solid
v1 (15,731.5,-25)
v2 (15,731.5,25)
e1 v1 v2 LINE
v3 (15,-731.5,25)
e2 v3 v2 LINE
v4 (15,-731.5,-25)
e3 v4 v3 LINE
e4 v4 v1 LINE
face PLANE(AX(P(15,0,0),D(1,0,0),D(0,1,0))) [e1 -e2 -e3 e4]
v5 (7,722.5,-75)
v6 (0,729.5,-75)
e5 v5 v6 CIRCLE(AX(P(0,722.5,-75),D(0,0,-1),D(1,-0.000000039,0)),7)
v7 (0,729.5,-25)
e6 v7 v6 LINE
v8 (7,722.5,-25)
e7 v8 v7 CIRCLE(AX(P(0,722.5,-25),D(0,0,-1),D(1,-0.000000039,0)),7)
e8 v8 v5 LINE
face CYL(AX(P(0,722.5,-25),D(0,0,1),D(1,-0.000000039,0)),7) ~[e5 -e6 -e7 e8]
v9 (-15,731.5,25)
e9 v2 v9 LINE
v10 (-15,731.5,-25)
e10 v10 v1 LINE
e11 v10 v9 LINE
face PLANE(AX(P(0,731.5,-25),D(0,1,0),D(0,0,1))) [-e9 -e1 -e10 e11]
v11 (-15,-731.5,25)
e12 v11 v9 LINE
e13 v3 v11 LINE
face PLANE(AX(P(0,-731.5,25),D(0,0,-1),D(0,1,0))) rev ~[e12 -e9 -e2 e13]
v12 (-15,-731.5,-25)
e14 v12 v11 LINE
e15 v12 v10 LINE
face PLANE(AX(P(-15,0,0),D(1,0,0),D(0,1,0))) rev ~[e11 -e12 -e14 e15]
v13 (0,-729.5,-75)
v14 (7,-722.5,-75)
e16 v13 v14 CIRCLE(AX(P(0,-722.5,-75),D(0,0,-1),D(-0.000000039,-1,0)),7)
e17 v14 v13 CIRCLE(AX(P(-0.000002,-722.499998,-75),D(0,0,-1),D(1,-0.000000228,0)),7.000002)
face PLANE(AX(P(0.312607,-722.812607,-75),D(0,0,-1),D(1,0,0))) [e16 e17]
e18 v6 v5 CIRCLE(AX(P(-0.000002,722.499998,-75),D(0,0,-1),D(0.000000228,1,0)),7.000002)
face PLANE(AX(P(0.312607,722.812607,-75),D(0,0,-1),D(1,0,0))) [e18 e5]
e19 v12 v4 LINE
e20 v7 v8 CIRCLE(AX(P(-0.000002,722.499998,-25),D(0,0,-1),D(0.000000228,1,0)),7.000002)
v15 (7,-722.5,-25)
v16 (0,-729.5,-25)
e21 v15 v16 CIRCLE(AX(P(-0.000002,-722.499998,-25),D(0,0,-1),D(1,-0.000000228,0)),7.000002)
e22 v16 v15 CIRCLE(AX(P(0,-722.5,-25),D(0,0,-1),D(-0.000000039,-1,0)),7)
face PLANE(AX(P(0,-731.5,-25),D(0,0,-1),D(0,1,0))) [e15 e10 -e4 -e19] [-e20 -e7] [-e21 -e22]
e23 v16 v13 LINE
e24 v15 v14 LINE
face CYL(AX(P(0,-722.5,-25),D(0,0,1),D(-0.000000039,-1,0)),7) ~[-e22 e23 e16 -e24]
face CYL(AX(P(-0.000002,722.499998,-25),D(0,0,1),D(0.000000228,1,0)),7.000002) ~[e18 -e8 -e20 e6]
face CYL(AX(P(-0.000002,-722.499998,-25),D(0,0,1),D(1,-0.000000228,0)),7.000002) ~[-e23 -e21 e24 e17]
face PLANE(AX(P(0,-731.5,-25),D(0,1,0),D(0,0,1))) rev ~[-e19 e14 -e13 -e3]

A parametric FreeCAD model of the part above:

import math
import FreeCAD as App
import Part
import Sketcher

doc = App.newDocument("Part")
params = doc.addObject("Spreadsheet::Sheet", "Params")
for row, (alias, value) in enumerate([
    ("sketch1_width", "1463 mm"),
    ("sketch1_height", "50 mm"),
    ("pad1_length", "15 mm"),
    ("pad1_length2", "15 mm"),
    ("sketch2_radius", "7 mm"),
    ("pad2_length", "50 mm"),
    ("sketch3_radius", "7.000002 mm"),
    ("pad3_length", "50 mm"),
], start=1):
    params.set(f"A{row}", alias)
    params.set(f"B{row}", "=" + value)
    params.setAlias(f"B{row}", alias)

body = doc.addObject("PartDesign::Body", "Body")

sketch1 = doc.addObject("Sketcher::SketchObject", "Sketch")
body.addObject(sketch1)
sketch1.AttachmentSupport = (doc.YZ_Plane, [""])
sketch1.MapMode = "FlatFace"
sketch1.addGeometry([
    Part.LineSegment(App.Vector(-732, 25, 0), App.Vector(-732, -25, 0)),
    Part.LineSegment(App.Vector(-732, -25, 0), App.Vector(732, -25, 0)),
    Part.LineSegment(App.Vector(732, -25, 0), App.Vector(732, 25, 0)),
    Part.LineSegment(App.Vector(732, 25, 0), App.Vector(-732, 25, 0)),
], False)
sketch1.addConstraint([
    Sketcher.Constraint("Coincident", 0, 2, 1, 1),
    Sketcher.Constraint("Coincident", 1, 2, 2, 1),
    Sketcher.Constraint("Coincident", 2, 2, 3, 1),
    Sketcher.Constraint("Coincident", 3, 2, 0, 1),
    Sketcher.Constraint("Vertical", 0),
    Sketcher.Constraint("Horizontal", 1),
    Sketcher.Constraint("Vertical", 2),
    Sketcher.Constraint("Horizontal", 3),
    Sketcher.Constraint("Symmetric", 0, 2, 2, 2, -1, 1),
    Sketcher.Constraint("DistanceX", 1, 1, 1, 2, 1463.0),
    Sketcher.Constraint("DistanceY", 0, 2, 0, 1, 50.0),
])
sketch1.setExpression("Constraints[9]", "Params.sketch1_width")
sketch1.setExpression("Constraints[10]", "Params.sketch1_height")
pad1 = doc.addObject("PartDesign::Pad", "Pad")
body.addObject(pad1)
pad1.Profile = sketch1
pad1.Type = "TwoLengths"
pad1.setExpression("Length", "Params.pad1_length")
pad1.setExpression("Length2", "Params.pad1_length2")

sketch2 = doc.addObject("Sketcher::SketchObject", "Sketch001")
body.addObject(sketch2)
sketch2.AttachmentSupport = (doc.XY_Plane, [""])
sketch2.MapMode = "FlatFace"
sketch2.AttachmentOffset = App.Placement(App.Vector(0, 0, -25), App.Rotation())
sketch2.addGeometry([
    Part.ArcOfCircle(Part.Circle(App.Vector(0, -723, 0), App.Vector(0, 0, 1), 7), math.radians(0), math.radians(270)),
    Part.ArcOfCircle(Part.Circle(App.Vector(0, -722, 0), App.Vector(0, 0, 1), 7), math.radians(-90), math.radians(0)),
], False)
sketch2.addConstraint([
    Sketcher.Constraint("Tangent", 0, 1, 1, 2),
    Sketcher.Constraint("Coincident", 1, 1, 0, 2),
    Sketcher.Constraint("PointOnObject", 0, 3, -2),
    Sketcher.Constraint("PointOnObject", 1, 1, -2),
    Sketcher.Constraint("Horizontal", 1, 3, 0, 1),
    Sketcher.Constraint("Radius", 0, 7.0),
    Sketcher.Constraint("DistanceY", 0, 3, -1, 1, 722.5),
])
sketch2.setExpression("Constraints[5]", "Params.sketch2_radius")
pad2 = doc.addObject("PartDesign::Pad", "Pad001")
body.addObject(pad2)
pad2.Profile = sketch2
pad2.setExpression("Length", "Params.pad2_length")
pad2.Reversed = True

sketch3 = doc.addObject("Sketcher::SketchObject", "Sketch002")
body.addObject(sketch3)
sketch3.AttachmentSupport = (doc.XY_Plane, [""])
sketch3.MapMode = "FlatFace"
sketch3.AttachmentOffset = App.Placement(App.Vector(0, 0, -25), App.Rotation())
sketch3.addGeometry([
    Part.ArcOfCircle(Part.Circle(App.Vector(0, 722, 0), App.Vector(0, 0, 1), 7), math.radians(0), math.radians(90)),
    Part.ArcOfCircle(Part.Circle(App.Vector(0, 723, 0), App.Vector(0, 0, 1), 7), math.radians(90), math.radians(360)),
], False)
sketch3.addConstraint([
    Sketcher.Constraint("Tangent", 0, 1, 1, 2),
    Sketcher.Constraint("Coincident", 1, 1, 0, 2),
    Sketcher.Constraint("PointOnObject", 0, 3, -2),
    Sketcher.Constraint("PointOnObject", 1, 1, -2),
    Sketcher.Constraint("Horizontal", 1, 3, 0, 1),
    Sketcher.Constraint("Radius", 0, 7.000002),
    Sketcher.Constraint("DistanceY", -1, 1, 0, 3, 722.499998),
])
sketch3.setExpression("Constraints[5]", "Params.sketch3_radius")
pad3 = doc.addObject("PartDesign::Pad", "Pad002")
body.addObject(pad3)
pad3.Profile = sketch3
pad3.setExpression("Length", "Params.pad3_length")
pad3.Reversed = True

doc.recompute()
